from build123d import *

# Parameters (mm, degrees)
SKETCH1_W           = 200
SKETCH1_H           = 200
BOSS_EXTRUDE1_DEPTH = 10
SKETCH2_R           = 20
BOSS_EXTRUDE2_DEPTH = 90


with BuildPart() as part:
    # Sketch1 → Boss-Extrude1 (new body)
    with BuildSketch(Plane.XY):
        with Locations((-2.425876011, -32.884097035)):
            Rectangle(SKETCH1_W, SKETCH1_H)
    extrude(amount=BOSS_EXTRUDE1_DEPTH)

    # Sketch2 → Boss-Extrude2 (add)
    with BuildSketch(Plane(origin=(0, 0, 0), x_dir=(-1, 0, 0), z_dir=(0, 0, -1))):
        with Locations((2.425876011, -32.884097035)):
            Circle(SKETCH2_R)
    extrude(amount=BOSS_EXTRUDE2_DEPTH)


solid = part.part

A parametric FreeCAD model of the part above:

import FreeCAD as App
import Part
import Sketcher
Q = App.Units.Quantity

doc = App.newDocument("Part")
body = doc.addObject("PartDesign::Body", "Body")

sketch1 = doc.addObject("Sketcher::SketchObject", "Sketch")
body.addObject(sketch1)
sketch1.AttachmentSupport = (doc.XY_Plane, [""])
sketch1.MapMode = "FlatFace"
sketch1.addGeometry([
    Part.LineSegment(App.Vector(-102.425876, 67.115903, 0), App.Vector(-102.425876, -132.884097, 0)),
    Part.LineSegment(App.Vector(-102.425876, -132.884097, 0), App.Vector(97.574124, -132.884097, 0)),
    Part.LineSegment(App.Vector(97.574124, -132.884097, 0), App.Vector(97.574124, 67.115903, 0)),
    Part.LineSegment(App.Vector(97.574124, 67.115903, 0), App.Vector(-102.425876, 67.115903, 0)),
], False)
sketch1.addConstraint([
    Sketcher.Constraint("Coincident", 0, 2, 1, 1),
    Sketcher.Constraint("Coincident", 1, 2, 2, 1),
    Sketcher.Constraint("Coincident", 2, 2, 3, 1),
    Sketcher.Constraint("Coincident", 3, 2, 0, 1),
    Sketcher.Constraint("Vertical", 0),
    Sketcher.Constraint("Horizontal", 1),
    Sketcher.Constraint("Vertical", 2),
    Sketcher.Constraint("Horizontal", 3),
    Sketcher.Constraint("Equal", 3, 0),
    Sketcher.Constraint("DistanceX", 1, 1, 1, 2, Q("200 mm")),
    Sketcher.Constraint("DistanceX", 0, 2, -1, 1, Q("102.425876 mm")),
    Sketcher.Constraint("DistanceY", 0, 2, -1, 1, Q("132.884097 mm")),
])
pad1 = doc.addObject("PartDesign::Pad", "Pad")
body.addObject(pad1)
pad1.Profile = sketch1
pad1.Length = 10

sketch2 = doc.addObject("Sketcher::SketchObject", "Sketch001")
body.addObject(sketch2)
sketch2.AttachmentSupport = (doc.XY_Plane, [""])
sketch2.MapMode = "FlatFace"
sketch2.addGeometry(Part.Circle(App.Vector(-2.425876, -32.884097, 0), App.Vector(0, 0, 1), 20), False)
sketch2.addConstraint([
    Sketcher.Constraint("Diameter", 0, Q("40 mm")),
    Sketcher.Constraint("DistanceX", 0, 3, -1, 1, Q("2.425876 mm")),
    Sketcher.Constraint("DistanceY", 0, 3, -1, 1, Q("32.884097 mm")),
])
pad2 = doc.addObject("PartDesign::Pad", "Pad001")
body.addObject(pad2)
pad2.Profile = sketch2
pad2.Length = 90
pad2.Reversed = True

doc.recompute()
